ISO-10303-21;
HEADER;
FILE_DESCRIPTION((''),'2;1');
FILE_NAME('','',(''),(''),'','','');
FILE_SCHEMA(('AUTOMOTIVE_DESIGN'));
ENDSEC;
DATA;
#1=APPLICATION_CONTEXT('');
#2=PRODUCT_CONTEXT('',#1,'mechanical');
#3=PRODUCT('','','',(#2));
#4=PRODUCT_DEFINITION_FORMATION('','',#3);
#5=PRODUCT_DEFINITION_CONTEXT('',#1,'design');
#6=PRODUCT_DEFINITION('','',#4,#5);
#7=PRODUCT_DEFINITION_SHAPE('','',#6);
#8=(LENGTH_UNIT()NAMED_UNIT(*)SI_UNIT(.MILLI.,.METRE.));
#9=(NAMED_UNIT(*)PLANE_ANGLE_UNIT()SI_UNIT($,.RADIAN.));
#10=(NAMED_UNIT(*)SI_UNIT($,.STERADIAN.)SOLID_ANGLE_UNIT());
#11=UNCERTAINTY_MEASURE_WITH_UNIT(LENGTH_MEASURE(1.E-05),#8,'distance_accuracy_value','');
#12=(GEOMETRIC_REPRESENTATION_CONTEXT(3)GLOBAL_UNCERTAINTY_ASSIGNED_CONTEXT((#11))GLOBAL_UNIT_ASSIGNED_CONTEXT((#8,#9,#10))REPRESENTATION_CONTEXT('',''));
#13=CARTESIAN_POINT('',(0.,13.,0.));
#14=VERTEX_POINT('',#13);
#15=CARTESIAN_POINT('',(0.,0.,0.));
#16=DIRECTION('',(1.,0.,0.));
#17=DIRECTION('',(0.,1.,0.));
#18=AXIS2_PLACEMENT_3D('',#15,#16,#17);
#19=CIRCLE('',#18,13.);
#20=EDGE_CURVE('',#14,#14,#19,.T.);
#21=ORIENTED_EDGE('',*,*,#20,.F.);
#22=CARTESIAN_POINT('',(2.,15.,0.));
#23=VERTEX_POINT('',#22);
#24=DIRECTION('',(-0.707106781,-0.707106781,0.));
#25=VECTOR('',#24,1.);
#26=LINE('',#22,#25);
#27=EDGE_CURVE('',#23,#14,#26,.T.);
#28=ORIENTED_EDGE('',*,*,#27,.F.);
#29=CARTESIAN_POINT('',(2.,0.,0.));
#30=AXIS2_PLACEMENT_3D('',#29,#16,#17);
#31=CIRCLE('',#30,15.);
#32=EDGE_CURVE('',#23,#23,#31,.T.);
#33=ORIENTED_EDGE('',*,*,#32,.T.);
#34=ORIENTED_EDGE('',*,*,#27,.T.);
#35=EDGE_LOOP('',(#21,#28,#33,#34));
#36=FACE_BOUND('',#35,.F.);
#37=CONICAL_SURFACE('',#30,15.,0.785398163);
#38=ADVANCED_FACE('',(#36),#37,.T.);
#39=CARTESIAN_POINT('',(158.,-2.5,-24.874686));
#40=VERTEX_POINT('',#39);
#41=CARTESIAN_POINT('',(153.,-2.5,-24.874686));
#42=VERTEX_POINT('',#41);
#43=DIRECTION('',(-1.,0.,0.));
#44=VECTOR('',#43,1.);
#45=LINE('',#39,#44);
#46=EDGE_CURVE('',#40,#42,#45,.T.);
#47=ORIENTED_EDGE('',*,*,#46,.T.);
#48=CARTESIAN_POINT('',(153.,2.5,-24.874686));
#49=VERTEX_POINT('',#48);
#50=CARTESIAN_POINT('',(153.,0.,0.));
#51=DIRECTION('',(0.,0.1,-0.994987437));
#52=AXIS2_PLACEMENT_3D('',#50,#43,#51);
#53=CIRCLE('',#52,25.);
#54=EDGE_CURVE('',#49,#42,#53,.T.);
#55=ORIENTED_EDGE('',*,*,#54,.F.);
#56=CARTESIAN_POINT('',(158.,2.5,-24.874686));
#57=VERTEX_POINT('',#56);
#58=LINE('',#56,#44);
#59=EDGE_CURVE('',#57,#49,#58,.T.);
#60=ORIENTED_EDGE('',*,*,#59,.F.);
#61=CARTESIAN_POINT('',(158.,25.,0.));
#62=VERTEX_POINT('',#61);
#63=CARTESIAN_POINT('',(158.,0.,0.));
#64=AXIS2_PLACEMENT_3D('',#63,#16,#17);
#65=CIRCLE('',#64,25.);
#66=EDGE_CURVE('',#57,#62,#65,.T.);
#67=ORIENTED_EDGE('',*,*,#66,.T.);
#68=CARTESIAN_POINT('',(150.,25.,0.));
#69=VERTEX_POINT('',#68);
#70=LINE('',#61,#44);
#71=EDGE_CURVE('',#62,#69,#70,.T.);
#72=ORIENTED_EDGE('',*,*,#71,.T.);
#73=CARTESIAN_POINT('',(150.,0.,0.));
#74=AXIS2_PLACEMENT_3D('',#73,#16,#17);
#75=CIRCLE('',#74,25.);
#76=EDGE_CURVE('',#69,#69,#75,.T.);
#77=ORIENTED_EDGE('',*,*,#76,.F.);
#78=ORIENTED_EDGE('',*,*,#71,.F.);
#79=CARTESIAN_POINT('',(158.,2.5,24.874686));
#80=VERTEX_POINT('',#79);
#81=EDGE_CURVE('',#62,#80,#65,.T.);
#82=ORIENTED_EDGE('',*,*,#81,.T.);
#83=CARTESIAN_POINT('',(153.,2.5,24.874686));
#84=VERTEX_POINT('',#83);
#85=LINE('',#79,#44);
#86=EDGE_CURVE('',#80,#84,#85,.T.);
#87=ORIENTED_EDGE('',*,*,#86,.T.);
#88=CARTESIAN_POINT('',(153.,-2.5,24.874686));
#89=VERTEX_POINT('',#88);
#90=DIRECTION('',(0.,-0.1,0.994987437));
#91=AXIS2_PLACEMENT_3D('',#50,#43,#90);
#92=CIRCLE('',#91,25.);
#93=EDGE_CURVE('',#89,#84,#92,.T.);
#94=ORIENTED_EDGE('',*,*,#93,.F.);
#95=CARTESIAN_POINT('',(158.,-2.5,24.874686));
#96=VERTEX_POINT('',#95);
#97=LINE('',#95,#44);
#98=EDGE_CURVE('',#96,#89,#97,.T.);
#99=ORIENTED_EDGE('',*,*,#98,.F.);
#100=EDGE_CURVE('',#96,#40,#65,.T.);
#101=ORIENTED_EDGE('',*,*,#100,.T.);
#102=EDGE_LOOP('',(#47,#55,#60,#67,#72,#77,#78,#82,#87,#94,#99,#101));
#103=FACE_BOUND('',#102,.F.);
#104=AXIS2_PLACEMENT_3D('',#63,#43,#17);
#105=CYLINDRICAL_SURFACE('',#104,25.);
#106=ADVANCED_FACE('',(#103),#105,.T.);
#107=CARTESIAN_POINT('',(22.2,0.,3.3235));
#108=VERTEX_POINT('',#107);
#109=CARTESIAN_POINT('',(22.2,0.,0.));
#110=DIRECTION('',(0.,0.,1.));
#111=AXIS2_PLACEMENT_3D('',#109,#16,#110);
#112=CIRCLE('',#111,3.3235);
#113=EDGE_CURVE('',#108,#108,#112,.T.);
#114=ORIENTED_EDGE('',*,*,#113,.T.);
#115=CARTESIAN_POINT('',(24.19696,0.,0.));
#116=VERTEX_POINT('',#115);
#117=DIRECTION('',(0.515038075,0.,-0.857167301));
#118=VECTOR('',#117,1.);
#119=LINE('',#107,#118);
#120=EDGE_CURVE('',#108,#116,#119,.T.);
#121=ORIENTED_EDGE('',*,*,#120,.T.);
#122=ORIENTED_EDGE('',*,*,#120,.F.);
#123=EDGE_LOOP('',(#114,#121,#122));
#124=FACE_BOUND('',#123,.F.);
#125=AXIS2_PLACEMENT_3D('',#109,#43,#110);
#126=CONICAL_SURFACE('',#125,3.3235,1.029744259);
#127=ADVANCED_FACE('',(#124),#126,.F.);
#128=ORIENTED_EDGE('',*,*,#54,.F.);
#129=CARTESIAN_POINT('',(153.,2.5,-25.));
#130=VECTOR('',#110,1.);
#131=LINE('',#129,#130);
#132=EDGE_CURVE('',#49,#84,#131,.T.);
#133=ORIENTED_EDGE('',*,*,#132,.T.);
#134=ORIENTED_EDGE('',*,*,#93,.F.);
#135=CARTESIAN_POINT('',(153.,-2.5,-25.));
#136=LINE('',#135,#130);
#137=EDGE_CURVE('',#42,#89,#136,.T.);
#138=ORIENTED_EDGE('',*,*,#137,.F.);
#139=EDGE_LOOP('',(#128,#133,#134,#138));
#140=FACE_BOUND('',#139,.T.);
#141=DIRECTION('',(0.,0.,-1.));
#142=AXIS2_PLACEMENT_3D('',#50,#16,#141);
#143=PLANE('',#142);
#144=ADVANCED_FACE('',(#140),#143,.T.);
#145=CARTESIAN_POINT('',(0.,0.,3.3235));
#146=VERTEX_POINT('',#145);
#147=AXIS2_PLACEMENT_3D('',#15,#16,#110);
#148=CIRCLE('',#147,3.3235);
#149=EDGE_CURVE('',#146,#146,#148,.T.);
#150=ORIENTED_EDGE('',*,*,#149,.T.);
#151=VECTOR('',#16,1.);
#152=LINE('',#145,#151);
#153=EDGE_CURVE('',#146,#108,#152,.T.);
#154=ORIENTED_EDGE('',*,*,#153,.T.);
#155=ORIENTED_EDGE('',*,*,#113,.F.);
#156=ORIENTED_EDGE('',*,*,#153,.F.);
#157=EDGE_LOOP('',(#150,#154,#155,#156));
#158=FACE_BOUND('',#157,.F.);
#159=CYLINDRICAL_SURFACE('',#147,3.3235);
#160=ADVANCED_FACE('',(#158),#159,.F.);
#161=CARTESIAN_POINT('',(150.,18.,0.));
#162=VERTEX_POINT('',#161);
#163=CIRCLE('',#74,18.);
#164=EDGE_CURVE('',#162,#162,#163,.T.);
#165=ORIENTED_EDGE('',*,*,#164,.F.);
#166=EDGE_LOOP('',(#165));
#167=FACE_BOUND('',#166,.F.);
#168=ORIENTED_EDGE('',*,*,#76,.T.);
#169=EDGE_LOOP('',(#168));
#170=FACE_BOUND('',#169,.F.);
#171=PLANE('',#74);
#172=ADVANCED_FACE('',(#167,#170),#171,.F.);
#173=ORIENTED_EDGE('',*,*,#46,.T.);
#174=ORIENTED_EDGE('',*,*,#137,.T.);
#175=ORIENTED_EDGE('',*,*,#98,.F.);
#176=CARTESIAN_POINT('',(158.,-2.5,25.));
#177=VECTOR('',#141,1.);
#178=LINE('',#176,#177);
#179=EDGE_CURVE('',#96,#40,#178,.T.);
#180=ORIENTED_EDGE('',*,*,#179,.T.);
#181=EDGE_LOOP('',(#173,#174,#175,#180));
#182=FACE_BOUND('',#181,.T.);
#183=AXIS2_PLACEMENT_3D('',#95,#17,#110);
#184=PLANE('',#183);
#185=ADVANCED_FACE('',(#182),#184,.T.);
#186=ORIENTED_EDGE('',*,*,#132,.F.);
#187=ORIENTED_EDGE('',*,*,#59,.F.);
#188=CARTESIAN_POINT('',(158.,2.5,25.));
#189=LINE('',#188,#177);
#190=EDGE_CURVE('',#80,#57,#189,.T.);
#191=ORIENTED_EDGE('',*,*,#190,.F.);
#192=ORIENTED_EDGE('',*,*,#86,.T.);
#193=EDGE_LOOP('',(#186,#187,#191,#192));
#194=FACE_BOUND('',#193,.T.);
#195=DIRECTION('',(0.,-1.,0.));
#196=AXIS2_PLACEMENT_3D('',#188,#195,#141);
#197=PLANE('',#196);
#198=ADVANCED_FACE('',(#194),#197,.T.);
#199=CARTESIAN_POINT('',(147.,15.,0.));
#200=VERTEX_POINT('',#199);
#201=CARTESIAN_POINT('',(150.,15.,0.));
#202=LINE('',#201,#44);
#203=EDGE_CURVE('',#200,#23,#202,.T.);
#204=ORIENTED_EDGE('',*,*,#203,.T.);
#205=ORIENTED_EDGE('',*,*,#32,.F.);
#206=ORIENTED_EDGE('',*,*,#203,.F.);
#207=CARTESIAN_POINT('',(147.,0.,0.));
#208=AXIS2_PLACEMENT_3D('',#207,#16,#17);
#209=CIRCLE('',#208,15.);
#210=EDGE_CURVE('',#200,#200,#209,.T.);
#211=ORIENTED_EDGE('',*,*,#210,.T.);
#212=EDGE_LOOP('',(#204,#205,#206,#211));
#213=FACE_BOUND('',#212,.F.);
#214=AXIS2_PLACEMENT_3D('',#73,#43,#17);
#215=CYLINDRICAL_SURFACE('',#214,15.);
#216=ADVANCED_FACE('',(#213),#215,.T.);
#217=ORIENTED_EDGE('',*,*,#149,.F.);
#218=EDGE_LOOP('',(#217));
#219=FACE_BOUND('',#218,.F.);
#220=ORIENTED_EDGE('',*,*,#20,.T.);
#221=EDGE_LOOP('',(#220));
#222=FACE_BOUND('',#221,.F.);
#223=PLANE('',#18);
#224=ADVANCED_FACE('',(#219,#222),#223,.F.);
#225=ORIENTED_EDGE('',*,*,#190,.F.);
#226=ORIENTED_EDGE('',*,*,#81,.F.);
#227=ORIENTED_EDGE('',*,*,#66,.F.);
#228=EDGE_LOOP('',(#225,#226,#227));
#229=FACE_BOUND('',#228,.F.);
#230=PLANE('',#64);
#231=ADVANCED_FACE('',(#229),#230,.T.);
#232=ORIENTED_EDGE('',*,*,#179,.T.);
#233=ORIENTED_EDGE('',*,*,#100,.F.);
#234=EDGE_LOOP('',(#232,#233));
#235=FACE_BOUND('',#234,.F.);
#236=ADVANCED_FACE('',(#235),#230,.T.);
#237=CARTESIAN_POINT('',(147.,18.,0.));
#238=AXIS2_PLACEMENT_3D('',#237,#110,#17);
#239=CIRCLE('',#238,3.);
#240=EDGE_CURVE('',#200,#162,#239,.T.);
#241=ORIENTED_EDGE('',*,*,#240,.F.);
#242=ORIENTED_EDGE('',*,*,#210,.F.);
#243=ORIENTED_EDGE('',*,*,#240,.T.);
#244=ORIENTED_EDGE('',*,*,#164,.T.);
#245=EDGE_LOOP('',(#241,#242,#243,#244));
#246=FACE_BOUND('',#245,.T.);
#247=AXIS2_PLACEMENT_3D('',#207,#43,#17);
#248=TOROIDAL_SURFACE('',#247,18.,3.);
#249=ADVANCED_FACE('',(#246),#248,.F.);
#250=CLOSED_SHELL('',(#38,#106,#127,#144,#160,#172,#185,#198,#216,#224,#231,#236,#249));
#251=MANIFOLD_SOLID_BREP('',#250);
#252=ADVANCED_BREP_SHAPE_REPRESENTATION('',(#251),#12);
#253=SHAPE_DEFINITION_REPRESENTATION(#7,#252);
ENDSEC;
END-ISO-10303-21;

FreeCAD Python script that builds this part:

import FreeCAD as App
import Part
import Sketcher
from FreeCAD import Vector
Q = App.Units.Quantity


def edges_at(feature, points):
    """Names of the edges that pass closest to the given points."""
    edges = feature.Shape.Edges
    near = lambda p: min(range(len(edges)), key=lambda i: edges[i].distToShape(Part.Vertex(*p))[0])
    return sorted({f"Edge{near(p) + 1}" for p in points})


def add_polygon(sketch, points):
    """Adds a closed chain of lines whose ends are joined by coincident constraints."""
    first, n = sketch.GeometryCount, len(points)
    for a, b in zip(points, points[1:] + points[:1]):
        sketch.addGeometry(Part.LineSegment(App.Vector(*a, 0), App.Vector(*b, 0)), False)
    for i in range(n):
        sketch.addConstraint(Sketcher.Constraint("Coincident", first + i, 2, first + (i + 1) % n, 1))

doc = App.newDocument("Part")
body = doc.addObject("PartDesign::Body", "Body")

sketch1 = body.newObject("Sketcher::SketchObject", "Sketch")
sketch1.AttachmentSupport = (doc.getObject("XY_Plane"), [""])
sketch1.MapMode = "FlatFace"
add_polygon(sketch1, [(0, 15), (0, 0), (158, 0), (158, 25), (150, 25), (150, 15)])
sketch1.addConstraint([
    Sketcher.Constraint("Vertical", 0),
    Sketcher.Constraint("Horizontal", 1),
    Sketcher.Constraint("Vertical", 2),
    Sketcher.Constraint("Horizontal", 3),
    Sketcher.Constraint("Vertical", 4),
    Sketcher.Constraint("Horizontal", 5),
    Sketcher.Constraint("Coincident", 0, 2, -1, 1),
    Sketcher.Constraint("DistanceX", 3, 2, 3, 1, Q("8 mm")),
    Sketcher.Constraint("DistanceX", 5, 2, 5, 1, Q("150 mm")),
    Sketcher.Constraint("DistanceY", 0, 2, 0, 1, Q("15 mm")),
    Sketcher.Constraint("DistanceY", 2, 1, 2, 2, Q("25 mm")),
])
revolution = body.newObject("PartDesign::Revolution", "Revolution")
revolution.Profile = sketch1
revolution.ReferenceAxis = (sketch1, ["H_Axis"])
revolution.Angle = 360
doc.recompute()

fillet = body.newObject("PartDesign::Fillet", "Fillet")
fillet.Base = (revolution, edges_at(revolution, [(150, -15, 0)]))
fillet.Radius = 3
doc.recompute()

chamfer = body.newObject("PartDesign::Chamfer", "Chamfer")
chamfer.Base = (fillet, edges_at(fillet, [(0, -15, 0)]))
chamfer.Size = 2

sketch2 = body.newObject("Sketcher::SketchObject", "Sketch001")
sketch2.AttachmentSupport = (doc.getObject("YZ_Plane"), [""])
sketch2.MapMode = "FlatFace"
sketch2.addGeometry(Part.Circle(Vector(0, 0, 0), Vector(0, 0, 1), 3.3), False)
sketch2.addConstraint([
    Sketcher.Constraint("Coincident", 0, 3, -1, 1),
    Sketcher.Constraint("Diameter", 0, Q("6.647 mm")),
])
doc.recompute()
hole = body.newObject("PartDesign::Hole", "Hole")
hole.Profile = sketch2
hole.ThreadType = "None"
hole.Diameter = 6.647
hole.DepthType = "Dimension"
hole.Depth = 22.2
hole.DrillPoint = "Angled"
hole.DrillPointAngle = 118
hole.Reversed = True

sketch3 = body.newObject("Sketcher::SketchObject", "Sketch002")
sketch3.AttachmentSupport = (doc.getObject("YZ_Plane"), [""])
sketch3.MapMode = "FlatFace"
sketch3.AttachmentOffset = App.Placement(Vector(0, 0, 158), App.Rotation())
add_polygon(sketch3, [(2, 25), (-2, 25), (-2, -25), (2, -25)])
sketch3.addConstraint([
    Sketcher.Constraint("Horizontal", 0),
    Sketcher.Constraint("Vertical", 1),
    Sketcher.Constraint("Horizontal", 2),
    Sketcher.Constraint("Vertical", 3),
    Sketcher.Constraint("Symmetric", 0, 2, 2, 2, -1, 1),
    Sketcher.Constraint("DistanceX", 0, 2, 0, 1, Q("5 mm")),
    Sketcher.Constraint("DistanceY", 1, 2, 1, 1, Q("50 mm")),
])
pocket1 = body.newObject("PartDesign::Pocket", "Pocket")
pocket1.Profile = sketch3
pocket1.Length = 5

doc.recompute()
